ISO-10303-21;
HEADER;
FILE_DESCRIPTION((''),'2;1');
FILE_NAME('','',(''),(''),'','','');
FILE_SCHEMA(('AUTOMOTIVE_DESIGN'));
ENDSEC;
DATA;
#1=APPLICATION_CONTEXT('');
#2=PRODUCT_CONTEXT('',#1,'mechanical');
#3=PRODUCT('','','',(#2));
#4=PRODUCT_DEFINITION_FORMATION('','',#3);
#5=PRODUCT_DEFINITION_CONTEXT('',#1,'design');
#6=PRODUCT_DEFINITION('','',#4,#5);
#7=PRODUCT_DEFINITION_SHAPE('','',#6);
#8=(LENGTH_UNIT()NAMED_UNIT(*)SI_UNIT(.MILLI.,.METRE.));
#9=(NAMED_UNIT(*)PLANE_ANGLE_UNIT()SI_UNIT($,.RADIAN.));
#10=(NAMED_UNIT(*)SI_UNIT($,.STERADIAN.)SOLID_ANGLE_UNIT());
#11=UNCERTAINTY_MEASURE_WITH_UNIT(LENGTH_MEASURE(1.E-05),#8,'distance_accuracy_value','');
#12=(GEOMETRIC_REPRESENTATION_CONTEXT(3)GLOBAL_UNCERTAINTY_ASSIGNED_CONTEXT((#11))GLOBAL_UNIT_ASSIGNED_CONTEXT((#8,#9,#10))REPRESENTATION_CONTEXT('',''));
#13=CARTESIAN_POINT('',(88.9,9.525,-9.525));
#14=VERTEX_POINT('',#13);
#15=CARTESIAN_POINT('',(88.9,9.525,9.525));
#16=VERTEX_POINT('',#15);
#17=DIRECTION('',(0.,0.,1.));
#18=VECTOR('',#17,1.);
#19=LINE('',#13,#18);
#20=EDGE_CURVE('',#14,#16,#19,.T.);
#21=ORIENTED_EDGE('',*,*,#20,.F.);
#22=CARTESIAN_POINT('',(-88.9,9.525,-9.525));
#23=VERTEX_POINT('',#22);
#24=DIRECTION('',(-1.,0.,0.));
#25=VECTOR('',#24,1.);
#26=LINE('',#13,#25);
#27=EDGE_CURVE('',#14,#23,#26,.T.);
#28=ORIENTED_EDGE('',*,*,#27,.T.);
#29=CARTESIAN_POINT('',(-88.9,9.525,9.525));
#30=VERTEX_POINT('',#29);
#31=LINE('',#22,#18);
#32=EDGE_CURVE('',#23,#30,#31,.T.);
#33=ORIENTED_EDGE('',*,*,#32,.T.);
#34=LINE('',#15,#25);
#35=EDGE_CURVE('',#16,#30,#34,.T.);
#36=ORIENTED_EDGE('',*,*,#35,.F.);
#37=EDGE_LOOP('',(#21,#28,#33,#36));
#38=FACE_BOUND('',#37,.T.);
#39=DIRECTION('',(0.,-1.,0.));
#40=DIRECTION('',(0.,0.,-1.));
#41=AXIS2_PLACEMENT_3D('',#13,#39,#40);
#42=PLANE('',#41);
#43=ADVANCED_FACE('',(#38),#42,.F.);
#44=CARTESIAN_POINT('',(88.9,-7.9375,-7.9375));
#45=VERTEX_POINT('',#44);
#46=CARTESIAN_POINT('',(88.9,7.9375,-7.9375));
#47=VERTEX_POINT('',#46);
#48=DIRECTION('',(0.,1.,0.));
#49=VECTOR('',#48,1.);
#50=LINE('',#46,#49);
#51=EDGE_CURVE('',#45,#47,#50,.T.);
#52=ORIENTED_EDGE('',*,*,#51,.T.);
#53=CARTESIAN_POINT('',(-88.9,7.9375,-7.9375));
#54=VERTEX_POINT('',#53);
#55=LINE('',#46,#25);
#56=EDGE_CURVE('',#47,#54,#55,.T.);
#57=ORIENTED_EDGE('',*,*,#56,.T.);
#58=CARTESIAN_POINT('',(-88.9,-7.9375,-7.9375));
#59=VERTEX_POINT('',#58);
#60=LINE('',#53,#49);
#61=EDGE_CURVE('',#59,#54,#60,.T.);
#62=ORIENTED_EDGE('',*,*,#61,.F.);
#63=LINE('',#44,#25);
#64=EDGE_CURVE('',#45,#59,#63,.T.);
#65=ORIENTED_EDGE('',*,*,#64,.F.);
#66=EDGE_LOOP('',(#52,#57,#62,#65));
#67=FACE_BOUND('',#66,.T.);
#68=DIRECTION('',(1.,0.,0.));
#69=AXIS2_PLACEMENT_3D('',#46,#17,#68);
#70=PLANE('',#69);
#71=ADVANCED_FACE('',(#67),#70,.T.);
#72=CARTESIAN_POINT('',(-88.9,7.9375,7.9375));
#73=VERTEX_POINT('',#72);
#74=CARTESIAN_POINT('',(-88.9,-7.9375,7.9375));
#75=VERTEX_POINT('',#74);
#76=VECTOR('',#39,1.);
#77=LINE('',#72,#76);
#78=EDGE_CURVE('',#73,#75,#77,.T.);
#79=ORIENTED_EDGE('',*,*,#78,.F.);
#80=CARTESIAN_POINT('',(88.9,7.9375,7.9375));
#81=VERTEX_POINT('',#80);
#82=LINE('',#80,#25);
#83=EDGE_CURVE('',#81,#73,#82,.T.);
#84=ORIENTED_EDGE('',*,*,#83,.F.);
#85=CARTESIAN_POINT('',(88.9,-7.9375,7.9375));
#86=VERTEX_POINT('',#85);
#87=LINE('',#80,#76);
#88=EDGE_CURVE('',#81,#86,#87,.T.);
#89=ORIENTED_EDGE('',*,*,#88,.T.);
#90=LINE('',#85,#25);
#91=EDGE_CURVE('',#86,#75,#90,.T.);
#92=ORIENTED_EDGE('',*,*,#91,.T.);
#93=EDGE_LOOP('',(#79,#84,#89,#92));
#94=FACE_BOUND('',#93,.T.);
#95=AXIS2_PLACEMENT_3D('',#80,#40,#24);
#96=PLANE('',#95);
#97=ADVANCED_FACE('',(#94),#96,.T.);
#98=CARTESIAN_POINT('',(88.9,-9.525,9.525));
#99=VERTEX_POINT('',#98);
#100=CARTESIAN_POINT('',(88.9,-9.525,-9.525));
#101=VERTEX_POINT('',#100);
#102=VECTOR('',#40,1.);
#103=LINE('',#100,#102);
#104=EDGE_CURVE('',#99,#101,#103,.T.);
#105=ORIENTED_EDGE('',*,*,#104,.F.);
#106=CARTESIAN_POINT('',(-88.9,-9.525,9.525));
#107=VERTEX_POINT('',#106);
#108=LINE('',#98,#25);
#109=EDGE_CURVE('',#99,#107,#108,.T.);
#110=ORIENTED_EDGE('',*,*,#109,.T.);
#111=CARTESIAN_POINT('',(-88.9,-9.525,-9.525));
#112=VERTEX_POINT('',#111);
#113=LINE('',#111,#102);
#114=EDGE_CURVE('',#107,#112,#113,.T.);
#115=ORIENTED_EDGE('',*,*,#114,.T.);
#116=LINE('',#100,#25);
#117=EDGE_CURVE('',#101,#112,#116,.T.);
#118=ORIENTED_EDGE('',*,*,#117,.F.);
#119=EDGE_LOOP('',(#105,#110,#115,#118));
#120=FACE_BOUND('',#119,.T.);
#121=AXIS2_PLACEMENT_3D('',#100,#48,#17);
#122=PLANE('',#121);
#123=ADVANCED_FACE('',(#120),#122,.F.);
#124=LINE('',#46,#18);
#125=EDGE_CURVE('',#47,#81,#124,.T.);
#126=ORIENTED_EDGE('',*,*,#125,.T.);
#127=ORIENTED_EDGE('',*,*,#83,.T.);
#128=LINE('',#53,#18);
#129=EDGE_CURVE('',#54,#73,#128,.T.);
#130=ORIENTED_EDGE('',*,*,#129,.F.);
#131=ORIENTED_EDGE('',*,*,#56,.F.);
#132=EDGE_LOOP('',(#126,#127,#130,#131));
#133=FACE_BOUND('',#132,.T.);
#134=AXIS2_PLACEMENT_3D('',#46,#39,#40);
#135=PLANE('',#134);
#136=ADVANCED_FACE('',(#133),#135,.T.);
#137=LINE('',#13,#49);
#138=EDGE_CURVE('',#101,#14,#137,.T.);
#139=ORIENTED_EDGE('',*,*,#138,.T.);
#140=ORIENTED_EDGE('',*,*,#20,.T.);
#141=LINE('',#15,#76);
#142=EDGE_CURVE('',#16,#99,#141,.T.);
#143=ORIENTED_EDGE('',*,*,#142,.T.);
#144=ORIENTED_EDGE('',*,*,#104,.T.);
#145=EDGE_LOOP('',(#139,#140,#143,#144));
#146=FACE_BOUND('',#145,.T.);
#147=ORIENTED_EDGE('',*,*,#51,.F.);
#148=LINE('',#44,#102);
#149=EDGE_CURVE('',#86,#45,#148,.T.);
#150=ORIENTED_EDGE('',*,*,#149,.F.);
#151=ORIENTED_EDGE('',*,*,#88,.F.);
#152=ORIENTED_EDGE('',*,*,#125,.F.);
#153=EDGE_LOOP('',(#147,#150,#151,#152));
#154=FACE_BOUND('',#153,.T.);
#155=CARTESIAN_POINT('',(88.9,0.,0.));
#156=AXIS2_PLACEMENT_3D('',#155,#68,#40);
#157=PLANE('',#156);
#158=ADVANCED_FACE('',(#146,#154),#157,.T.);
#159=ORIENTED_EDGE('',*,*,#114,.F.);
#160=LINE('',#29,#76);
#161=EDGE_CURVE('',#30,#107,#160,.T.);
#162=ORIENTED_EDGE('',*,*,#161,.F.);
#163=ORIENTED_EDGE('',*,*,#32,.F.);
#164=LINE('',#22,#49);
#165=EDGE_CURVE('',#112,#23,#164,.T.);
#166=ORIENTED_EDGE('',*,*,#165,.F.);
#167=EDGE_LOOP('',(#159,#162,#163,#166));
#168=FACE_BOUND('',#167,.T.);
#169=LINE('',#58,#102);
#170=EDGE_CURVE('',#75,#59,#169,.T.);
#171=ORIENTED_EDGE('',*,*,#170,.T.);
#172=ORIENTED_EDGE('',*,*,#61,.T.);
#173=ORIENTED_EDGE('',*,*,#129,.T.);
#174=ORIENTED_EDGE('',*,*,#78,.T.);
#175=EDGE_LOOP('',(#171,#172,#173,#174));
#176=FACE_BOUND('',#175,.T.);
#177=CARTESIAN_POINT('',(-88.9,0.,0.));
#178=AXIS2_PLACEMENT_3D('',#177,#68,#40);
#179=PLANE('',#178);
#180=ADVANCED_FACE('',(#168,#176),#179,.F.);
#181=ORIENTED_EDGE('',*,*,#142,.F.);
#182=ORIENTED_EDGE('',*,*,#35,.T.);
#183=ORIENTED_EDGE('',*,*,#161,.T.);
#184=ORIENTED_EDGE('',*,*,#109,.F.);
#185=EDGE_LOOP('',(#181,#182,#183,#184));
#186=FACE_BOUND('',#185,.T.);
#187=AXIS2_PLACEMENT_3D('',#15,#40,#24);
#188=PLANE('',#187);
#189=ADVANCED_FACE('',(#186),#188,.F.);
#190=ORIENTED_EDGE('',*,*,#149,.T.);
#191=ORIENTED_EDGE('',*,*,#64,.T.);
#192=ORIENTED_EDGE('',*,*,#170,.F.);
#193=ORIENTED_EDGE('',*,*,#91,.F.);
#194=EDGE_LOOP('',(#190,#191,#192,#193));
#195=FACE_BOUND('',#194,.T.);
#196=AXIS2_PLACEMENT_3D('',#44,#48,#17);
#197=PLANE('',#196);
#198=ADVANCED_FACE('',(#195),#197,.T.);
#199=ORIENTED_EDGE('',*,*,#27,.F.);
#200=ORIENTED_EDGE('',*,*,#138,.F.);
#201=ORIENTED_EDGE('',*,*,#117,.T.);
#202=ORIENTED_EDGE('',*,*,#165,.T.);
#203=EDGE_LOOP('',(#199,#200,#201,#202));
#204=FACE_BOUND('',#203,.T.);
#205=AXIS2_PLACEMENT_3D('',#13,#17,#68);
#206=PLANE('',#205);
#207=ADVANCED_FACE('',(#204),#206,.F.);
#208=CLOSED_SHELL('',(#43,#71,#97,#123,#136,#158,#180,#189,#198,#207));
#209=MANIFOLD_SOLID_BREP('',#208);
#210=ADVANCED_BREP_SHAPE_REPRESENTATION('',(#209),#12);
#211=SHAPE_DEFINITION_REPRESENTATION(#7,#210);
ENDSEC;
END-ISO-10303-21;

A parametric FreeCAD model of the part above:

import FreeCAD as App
import Part
import Sketcher

V = App.Vector
Q = App.Units.Quantity

doc = App.newDocument("Part")
body = doc.addObject("PartDesign::Body", "Body")

sketch1 = body.newObject("Sketcher::SketchObject", "Sketch")
sketch1.AttachmentSupport = (doc.getObject("YZ_Plane"), [""])
sketch1.MapMode = "FlatFace"
sketch1.addGeometry([
    Part.LineSegment(V(10, -10, 0), V(10, 10, 0)),
    Part.LineSegment(V(10, 10, 0), V(-10, 10, 0)),
    Part.LineSegment(V(-10, 10, 0), V(-10, -10, 0)),
    Part.LineSegment(V(-10, -10, 0), V(10, -10, 0)),
    Part.LineSegment(V(-8, 8, 0), V(8, 8, 0)),
    Part.LineSegment(V(8, 8, 0), V(8, -8, 0)),
    Part.LineSegment(V(8, -8, 0), V(-8, -8, 0)),
    Part.LineSegment(V(-8, -8, 0), V(-8, 8, 0)),
], False)
sketch1.addConstraint([
    Sketcher.Constraint("Coincident", 0, 2, 1, 1),
    Sketcher.Constraint("Coincident", 1, 2, 2, 1),
    Sketcher.Constraint("Coincident", 2, 2, 3, 1),
    Sketcher.Constraint("Coincident", 3, 2, 0, 1),
    Sketcher.Constraint("Coincident", 4, 2, 5, 1),
    Sketcher.Constraint("Coincident", 5, 2, 6, 1),
    Sketcher.Constraint("Coincident", 6, 2, 7, 1),
    Sketcher.Constraint("Coincident", 7, 2, 4, 1),
    Sketcher.Constraint("Vertical", 0),
    Sketcher.Constraint("Horizontal", 1),
    Sketcher.Constraint("Vertical", 2),
    Sketcher.Constraint("Horizontal", 3),
    Sketcher.Constraint("Horizontal", 4),
    Sketcher.Constraint("Vertical", 5),
    Sketcher.Constraint("Horizontal", 6),
    Sketcher.Constraint("Vertical", 7),
    Sketcher.Constraint("Symmetric", 0, 2, 2, 2, -1, 1),
    Sketcher.Constraint("Symmetric", 4, 2, 6, 2, -1, 1),
    Sketcher.Constraint("Equal", 3, 0),
    Sketcher.Constraint("Equal", 6, 5),
    Sketcher.Constraint("DistanceX", 1, 2, 1, 1, Q("0.75 in")),
    Sketcher.Constraint("DistanceX", 4, 1, 4, 2, Q("0.625 in")),
])
pad1 = body.newObject("PartDesign::Pad", "Pad")
pad1.Profile = sketch1
pad1.Length = Q("7 in")
pad1.Midplane = True

doc.recompute()
